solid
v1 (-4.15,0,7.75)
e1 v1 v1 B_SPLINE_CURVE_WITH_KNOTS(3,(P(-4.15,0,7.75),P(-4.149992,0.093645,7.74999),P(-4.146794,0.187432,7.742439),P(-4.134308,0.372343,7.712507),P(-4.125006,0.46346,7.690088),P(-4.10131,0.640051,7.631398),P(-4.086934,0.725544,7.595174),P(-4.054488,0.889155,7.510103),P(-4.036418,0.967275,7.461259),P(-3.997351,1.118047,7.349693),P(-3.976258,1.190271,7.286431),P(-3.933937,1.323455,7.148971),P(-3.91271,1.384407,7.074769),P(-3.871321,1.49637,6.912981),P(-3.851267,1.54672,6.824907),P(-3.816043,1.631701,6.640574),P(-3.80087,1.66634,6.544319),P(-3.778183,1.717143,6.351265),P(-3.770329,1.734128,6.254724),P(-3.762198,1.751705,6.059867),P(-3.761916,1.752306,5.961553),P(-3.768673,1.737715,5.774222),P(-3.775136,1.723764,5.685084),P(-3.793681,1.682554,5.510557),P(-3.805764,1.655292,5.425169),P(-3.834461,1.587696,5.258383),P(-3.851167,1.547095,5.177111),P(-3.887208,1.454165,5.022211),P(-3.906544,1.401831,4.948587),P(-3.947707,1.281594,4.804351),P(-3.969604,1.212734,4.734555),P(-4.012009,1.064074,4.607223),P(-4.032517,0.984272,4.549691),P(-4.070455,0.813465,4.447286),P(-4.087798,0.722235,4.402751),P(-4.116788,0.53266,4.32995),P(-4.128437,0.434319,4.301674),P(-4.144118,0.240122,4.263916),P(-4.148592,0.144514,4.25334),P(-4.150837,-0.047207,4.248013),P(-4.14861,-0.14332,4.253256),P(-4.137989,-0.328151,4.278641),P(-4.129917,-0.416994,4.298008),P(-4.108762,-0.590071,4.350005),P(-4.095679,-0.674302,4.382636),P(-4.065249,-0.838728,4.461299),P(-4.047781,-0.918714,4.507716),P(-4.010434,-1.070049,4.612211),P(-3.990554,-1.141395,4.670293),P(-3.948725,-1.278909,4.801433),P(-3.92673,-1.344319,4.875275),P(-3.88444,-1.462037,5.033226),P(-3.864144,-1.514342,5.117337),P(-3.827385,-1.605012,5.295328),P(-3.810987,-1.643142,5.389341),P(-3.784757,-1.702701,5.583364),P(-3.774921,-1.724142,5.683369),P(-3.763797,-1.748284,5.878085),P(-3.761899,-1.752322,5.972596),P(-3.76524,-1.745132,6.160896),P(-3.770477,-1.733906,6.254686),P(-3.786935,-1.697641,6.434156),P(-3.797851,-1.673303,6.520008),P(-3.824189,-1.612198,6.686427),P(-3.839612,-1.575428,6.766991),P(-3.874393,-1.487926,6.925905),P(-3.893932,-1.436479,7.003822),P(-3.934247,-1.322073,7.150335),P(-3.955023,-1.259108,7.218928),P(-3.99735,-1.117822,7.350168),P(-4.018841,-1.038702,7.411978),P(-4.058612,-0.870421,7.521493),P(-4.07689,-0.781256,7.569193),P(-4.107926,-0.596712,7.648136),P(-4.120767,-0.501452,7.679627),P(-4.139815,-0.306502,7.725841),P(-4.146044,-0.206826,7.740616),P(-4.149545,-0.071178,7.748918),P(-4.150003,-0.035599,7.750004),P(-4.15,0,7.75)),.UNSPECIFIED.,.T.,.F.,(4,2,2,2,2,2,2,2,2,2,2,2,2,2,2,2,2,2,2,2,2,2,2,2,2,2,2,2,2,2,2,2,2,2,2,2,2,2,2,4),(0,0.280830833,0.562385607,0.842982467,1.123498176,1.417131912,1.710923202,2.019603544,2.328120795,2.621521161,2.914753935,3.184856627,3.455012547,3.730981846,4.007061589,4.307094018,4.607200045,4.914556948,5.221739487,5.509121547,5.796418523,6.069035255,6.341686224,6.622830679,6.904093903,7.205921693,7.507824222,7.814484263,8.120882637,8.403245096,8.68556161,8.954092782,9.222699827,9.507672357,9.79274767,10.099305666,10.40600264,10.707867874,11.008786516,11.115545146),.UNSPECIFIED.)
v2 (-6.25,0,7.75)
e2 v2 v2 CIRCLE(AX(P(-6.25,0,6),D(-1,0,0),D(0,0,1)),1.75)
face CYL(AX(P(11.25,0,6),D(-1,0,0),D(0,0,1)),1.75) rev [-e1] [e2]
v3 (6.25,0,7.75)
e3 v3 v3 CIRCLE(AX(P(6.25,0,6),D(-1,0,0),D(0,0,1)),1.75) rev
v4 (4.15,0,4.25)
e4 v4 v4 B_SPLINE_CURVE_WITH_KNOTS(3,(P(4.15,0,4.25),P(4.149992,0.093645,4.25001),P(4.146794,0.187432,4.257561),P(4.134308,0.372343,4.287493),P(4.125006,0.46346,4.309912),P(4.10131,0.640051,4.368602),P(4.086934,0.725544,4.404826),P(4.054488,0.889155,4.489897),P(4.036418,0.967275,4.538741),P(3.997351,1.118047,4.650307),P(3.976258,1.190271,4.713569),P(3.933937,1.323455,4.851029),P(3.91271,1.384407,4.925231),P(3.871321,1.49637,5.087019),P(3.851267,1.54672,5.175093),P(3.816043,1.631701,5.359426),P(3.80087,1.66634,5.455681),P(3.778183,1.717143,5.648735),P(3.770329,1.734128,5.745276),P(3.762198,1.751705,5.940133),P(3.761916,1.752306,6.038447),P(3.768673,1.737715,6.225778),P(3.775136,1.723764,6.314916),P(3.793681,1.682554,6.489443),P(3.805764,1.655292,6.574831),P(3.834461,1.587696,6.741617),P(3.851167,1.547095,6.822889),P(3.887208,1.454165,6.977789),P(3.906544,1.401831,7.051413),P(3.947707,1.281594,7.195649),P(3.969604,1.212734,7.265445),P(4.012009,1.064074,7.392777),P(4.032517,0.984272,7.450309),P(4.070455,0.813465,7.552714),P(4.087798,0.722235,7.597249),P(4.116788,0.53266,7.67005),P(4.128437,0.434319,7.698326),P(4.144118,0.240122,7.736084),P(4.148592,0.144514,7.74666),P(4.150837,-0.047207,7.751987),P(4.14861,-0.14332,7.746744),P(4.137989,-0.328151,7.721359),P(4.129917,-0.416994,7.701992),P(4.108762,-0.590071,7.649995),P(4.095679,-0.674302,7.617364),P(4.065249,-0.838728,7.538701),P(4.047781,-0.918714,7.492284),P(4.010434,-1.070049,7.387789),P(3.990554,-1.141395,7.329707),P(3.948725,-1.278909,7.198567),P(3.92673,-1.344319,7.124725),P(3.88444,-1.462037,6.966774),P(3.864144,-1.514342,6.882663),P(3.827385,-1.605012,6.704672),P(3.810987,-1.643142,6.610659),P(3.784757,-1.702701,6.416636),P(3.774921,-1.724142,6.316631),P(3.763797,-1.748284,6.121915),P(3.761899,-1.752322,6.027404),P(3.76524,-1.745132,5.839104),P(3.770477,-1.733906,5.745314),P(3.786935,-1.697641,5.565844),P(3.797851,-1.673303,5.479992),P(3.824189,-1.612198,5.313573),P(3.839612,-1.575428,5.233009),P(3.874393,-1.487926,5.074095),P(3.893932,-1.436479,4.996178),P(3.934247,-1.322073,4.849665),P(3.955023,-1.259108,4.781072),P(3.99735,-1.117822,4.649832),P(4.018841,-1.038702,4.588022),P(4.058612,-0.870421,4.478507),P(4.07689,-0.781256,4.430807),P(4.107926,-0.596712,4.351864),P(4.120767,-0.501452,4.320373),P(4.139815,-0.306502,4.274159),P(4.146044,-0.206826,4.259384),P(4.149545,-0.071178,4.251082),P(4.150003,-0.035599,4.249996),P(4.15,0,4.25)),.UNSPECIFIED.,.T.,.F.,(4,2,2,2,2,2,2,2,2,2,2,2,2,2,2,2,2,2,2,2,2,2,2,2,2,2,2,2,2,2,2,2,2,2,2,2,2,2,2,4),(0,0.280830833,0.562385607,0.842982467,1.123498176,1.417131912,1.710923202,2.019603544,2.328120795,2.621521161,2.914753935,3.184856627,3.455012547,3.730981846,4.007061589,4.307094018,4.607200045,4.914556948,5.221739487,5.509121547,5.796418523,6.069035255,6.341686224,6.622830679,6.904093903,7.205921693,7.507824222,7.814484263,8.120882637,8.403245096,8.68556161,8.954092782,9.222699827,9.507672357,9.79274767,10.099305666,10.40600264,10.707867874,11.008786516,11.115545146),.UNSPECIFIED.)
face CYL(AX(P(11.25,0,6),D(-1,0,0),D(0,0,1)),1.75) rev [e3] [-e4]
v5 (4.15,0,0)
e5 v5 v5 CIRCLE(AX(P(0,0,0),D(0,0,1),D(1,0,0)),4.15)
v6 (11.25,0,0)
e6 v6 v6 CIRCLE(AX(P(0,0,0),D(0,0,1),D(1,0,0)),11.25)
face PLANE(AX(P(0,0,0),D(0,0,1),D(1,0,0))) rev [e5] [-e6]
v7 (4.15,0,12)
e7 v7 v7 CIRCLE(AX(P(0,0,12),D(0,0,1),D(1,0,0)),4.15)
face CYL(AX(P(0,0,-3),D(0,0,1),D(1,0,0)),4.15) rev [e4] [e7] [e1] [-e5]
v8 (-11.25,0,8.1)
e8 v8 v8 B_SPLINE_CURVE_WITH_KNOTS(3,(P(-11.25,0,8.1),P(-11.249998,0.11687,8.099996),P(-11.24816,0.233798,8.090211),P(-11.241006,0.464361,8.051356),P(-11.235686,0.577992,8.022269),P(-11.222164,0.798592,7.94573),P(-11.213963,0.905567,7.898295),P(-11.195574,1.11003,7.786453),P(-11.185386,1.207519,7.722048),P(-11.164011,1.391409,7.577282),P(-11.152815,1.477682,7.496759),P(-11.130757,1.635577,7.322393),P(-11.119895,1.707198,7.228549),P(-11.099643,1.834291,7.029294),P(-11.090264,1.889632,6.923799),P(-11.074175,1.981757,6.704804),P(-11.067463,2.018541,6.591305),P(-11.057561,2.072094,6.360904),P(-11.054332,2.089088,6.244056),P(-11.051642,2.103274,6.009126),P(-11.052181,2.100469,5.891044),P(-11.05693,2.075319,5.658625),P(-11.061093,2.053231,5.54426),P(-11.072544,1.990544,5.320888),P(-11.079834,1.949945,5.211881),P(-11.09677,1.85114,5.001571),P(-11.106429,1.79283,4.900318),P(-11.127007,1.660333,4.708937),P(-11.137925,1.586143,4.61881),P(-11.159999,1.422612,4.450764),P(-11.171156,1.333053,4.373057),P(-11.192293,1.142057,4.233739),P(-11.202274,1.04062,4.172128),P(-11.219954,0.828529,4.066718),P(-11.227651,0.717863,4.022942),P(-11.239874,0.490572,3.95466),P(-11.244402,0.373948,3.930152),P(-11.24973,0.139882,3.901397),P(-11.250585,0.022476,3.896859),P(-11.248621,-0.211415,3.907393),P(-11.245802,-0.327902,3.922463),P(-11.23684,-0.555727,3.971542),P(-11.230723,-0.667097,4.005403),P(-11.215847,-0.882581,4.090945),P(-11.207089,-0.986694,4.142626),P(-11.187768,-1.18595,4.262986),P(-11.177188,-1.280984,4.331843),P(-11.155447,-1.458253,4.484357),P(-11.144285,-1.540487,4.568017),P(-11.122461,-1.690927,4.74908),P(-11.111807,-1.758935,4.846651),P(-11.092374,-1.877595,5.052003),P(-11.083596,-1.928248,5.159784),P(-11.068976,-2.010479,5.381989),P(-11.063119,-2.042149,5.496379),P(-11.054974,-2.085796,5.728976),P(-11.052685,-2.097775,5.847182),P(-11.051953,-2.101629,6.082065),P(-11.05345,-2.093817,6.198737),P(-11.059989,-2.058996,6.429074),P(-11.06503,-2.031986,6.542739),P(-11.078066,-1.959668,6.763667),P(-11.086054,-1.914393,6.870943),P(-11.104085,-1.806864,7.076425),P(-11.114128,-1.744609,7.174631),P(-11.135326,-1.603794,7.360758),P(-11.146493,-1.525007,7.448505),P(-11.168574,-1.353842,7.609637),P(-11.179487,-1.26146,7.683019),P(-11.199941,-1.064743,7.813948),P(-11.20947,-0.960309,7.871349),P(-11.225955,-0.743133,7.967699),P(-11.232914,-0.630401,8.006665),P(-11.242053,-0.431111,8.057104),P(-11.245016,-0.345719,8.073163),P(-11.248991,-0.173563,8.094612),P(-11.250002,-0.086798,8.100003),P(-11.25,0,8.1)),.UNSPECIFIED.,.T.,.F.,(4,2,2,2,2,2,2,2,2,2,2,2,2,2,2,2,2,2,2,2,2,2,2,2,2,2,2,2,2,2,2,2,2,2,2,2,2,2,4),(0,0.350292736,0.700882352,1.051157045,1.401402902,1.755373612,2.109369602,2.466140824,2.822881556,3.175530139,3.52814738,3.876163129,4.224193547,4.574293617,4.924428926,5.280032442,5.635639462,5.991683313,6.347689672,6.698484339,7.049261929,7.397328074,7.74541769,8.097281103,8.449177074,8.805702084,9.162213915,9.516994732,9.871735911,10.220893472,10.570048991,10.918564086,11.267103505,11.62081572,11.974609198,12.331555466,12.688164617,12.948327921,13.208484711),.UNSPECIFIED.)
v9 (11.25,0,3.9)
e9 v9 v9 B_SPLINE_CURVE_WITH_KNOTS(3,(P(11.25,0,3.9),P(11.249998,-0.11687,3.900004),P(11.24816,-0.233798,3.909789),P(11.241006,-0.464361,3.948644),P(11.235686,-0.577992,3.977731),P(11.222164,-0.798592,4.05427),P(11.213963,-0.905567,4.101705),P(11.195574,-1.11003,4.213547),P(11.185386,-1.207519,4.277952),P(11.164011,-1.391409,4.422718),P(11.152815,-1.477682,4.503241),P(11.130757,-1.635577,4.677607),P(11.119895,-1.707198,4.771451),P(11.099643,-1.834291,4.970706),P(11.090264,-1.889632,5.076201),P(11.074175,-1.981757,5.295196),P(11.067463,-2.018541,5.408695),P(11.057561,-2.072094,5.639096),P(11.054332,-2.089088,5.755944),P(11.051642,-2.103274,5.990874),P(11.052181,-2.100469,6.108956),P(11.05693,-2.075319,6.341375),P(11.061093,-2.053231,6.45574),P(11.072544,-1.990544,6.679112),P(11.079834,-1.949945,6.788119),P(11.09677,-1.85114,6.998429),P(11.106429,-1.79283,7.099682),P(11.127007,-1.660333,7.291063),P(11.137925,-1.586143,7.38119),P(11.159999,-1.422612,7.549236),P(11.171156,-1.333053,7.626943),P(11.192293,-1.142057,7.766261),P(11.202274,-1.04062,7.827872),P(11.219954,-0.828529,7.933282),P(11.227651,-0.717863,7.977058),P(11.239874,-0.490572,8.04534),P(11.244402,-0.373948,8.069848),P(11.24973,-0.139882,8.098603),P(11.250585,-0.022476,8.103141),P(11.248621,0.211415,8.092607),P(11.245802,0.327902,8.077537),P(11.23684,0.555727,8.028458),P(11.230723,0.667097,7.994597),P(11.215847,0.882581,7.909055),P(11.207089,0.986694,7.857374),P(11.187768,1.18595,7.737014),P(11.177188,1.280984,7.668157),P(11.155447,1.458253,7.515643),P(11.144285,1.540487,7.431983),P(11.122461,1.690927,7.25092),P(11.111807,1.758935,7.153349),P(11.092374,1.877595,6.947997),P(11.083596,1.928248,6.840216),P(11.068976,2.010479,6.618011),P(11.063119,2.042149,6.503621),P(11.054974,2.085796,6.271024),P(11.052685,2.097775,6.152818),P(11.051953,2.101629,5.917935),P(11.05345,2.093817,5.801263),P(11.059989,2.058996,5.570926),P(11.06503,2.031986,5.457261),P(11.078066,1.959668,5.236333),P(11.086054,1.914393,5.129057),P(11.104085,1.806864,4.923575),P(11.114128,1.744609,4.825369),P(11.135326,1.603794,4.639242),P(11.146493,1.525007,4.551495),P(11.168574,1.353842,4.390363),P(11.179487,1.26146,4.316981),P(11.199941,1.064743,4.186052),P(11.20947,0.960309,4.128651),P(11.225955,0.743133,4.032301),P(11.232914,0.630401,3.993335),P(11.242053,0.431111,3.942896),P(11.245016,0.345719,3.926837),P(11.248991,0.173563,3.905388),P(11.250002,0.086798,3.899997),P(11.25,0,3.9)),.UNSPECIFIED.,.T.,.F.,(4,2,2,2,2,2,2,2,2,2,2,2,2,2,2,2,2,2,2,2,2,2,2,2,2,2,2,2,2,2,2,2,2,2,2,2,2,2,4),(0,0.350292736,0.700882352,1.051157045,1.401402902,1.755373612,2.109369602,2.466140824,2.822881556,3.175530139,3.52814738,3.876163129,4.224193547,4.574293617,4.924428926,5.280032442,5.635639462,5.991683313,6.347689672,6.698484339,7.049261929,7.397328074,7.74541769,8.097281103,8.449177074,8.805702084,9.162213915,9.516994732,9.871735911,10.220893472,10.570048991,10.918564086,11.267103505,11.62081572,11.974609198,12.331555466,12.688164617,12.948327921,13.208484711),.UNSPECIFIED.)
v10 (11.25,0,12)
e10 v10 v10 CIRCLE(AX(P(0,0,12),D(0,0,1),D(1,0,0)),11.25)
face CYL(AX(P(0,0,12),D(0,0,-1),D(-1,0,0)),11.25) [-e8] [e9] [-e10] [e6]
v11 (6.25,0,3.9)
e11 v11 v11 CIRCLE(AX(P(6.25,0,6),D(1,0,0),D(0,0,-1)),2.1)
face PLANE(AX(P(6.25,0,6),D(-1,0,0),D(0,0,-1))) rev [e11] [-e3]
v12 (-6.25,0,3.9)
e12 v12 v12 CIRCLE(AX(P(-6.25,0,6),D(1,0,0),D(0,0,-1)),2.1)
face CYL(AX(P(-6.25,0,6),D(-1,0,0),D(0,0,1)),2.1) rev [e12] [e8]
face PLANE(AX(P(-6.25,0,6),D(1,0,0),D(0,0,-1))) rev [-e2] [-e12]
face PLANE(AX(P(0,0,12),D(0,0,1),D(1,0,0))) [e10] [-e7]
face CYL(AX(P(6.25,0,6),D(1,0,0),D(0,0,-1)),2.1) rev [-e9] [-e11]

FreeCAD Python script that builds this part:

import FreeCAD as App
import Part
import Sketcher

V = App.Vector

doc = App.newDocument("Part")
body = doc.addObject("PartDesign::Body", "Body")

sketch1 = body.newObject("Sketcher::SketchObject", "Sketch")
sketch1.AttachmentSupport = (doc.getObject("XY_Plane"), [""])
sketch1.MapMode = "FlatFace"
sketch1.addGeometry(Part.Circle(V(0, 0, 0), V(0, 0, 1), 11.25), False)
sketch1.addConstraint([
    Sketcher.Constraint("Coincident", 0, 3, -1, 1),
    Sketcher.Constraint("Diameter", 0, 22.5),
])
pad1 = body.newObject("PartDesign::Pad", "Pad")
pad1.Profile = sketch1
pad1.Length = 12

sketch2 = body.newObject("Sketcher::SketchObject", "Sketch001")
sketch2.AttachmentSupport = (doc.getObject("XY_Plane"), [""])
sketch2.MapMode = "FlatFace"
sketch2.AttachmentOffset = App.Placement(V(0, 0, 12), App.Rotation())
sketch2.addGeometry(Part.Circle(V(0, 0, 0), V(0, 0, 1), 4.15), False)
sketch2.addConstraint([
    Sketcher.Constraint("Coincident", 0, 3, -1, 1),
    Sketcher.Constraint("Diameter", 0, 8.3),
])
pocket1 = body.newObject("PartDesign::Pocket", "Pocket")
pocket1.Profile = sketch2
pocket1.Length = 15

sketch3 = body.newObject("Sketcher::SketchObject", "Sketch002")
sketch3.AttachmentSupport = (doc.getObject("YZ_Plane"), [""])
sketch3.MapMode = "FlatFace"
sketch3.AttachmentOffset = App.Placement(V(0, 0, -11.25), App.Rotation())
sketch3.addGeometry(Part.Circle(V(0, 6, 0), V(0, 0, 1), 2.1), False)
sketch3.addConstraint([
    Sketcher.Constraint("PointOnObject", 0, 3, -2),
    Sketcher.Constraint("Diameter", 0, 4.2),
    Sketcher.Constraint("DistanceY", -1, 1, 0, 3, 6.0),
])
pocket2 = body.newObject("PartDesign::Pocket", "Pocket001")
pocket2.Profile = sketch3
pocket2.Length = 5
pocket2.Reversed = True

sketch4 = body.newObject("Sketcher::SketchObject", "Sketch003")
sketch4.AttachmentSupport = (doc.getObject("YZ_Plane"), [""])
sketch4.MapMode = "FlatFace"
sketch4.AttachmentOffset = App.Placement(V(0, 0, -6.25), App.Rotation())
sketch4.addGeometry(Part.Circle(V(0, 6, 0), V(0, 0, 1), 1.75), False)
sketch4.addConstraint([
    Sketcher.Constraint("PointOnObject", 0, 3, -2),
    Sketcher.Constraint("Diameter", 0, 3.5),
    Sketcher.Constraint("DistanceY", -1, 1, 0, 3, 6.0),
])
pocket3 = body.newObject("PartDesign::Pocket", "Pocket002")
pocket3.Profile = sketch4
pocket3.Type = "ThroughAll"
pocket3.Reversed = True
doc.recompute()

mirrored = body.newObject("PartDesign::Mirrored", "Mirrored")
mirrored.Originals = [pocket2]
mirrored.MirrorPlane = (doc.getObject("YZ_Plane"), [""])
body.Tip = mirrored

doc.recompute()
